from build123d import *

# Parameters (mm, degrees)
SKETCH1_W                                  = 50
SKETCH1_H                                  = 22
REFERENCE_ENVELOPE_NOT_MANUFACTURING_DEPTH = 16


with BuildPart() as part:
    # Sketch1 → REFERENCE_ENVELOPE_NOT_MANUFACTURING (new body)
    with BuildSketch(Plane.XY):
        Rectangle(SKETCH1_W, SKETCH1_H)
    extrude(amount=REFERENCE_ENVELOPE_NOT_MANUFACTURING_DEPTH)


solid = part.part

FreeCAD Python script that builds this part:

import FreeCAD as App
import Part
import Sketcher
Q = App.Units.Quantity


def add_polygon(sketch, points):
    """Adds a closed chain of lines whose ends are joined by coincident constraints."""
    first, n = sketch.GeometryCount, len(points)
    for a, b in zip(points, points[1:] + points[:1]):
        sketch.addGeometry(Part.LineSegment(App.Vector(*a, 0), App.Vector(*b, 0)), False)
    for i in range(n):
        sketch.addConstraint(Sketcher.Constraint("Coincident", first + i, 2, first + (i + 1) % n, 1))

doc = App.newDocument("Part")
body = doc.addObject("PartDesign::Body", "Body")

# Sketch on XY plane
sketch1 = body.newObject("Sketcher::SketchObject", "Sketch")
sketch1.AttachmentSupport = (doc.getObject("XY_Plane"), [""])
sketch1.MapMode = "FlatFace"
add_polygon(sketch1, [(-25, 11), (-25, -11), (25, -11), (25, 11)])  # lines 0-3
sketch1.addConstraint([
    Sketcher.Constraint("Vertical", 0),
    Sketcher.Constraint("Horizontal", 1),
    Sketcher.Constraint("Vertical", 2),
    Sketcher.Constraint("Horizontal", 3),
    Sketcher.Constraint("Symmetric", 0, 2, 2, 2, -1, 1),
    Sketcher.Constraint("DistanceX", 1, 1, 1, 2, Q("50 mm")),
    Sketcher.Constraint("DistanceY", 0, 2, 0, 1, Q("22 mm")),
])
pad1 = body.newObject("PartDesign::Pad", "Pad")
pad1.Profile = sketch1
pad1.Length = 16

doc.recompute()
